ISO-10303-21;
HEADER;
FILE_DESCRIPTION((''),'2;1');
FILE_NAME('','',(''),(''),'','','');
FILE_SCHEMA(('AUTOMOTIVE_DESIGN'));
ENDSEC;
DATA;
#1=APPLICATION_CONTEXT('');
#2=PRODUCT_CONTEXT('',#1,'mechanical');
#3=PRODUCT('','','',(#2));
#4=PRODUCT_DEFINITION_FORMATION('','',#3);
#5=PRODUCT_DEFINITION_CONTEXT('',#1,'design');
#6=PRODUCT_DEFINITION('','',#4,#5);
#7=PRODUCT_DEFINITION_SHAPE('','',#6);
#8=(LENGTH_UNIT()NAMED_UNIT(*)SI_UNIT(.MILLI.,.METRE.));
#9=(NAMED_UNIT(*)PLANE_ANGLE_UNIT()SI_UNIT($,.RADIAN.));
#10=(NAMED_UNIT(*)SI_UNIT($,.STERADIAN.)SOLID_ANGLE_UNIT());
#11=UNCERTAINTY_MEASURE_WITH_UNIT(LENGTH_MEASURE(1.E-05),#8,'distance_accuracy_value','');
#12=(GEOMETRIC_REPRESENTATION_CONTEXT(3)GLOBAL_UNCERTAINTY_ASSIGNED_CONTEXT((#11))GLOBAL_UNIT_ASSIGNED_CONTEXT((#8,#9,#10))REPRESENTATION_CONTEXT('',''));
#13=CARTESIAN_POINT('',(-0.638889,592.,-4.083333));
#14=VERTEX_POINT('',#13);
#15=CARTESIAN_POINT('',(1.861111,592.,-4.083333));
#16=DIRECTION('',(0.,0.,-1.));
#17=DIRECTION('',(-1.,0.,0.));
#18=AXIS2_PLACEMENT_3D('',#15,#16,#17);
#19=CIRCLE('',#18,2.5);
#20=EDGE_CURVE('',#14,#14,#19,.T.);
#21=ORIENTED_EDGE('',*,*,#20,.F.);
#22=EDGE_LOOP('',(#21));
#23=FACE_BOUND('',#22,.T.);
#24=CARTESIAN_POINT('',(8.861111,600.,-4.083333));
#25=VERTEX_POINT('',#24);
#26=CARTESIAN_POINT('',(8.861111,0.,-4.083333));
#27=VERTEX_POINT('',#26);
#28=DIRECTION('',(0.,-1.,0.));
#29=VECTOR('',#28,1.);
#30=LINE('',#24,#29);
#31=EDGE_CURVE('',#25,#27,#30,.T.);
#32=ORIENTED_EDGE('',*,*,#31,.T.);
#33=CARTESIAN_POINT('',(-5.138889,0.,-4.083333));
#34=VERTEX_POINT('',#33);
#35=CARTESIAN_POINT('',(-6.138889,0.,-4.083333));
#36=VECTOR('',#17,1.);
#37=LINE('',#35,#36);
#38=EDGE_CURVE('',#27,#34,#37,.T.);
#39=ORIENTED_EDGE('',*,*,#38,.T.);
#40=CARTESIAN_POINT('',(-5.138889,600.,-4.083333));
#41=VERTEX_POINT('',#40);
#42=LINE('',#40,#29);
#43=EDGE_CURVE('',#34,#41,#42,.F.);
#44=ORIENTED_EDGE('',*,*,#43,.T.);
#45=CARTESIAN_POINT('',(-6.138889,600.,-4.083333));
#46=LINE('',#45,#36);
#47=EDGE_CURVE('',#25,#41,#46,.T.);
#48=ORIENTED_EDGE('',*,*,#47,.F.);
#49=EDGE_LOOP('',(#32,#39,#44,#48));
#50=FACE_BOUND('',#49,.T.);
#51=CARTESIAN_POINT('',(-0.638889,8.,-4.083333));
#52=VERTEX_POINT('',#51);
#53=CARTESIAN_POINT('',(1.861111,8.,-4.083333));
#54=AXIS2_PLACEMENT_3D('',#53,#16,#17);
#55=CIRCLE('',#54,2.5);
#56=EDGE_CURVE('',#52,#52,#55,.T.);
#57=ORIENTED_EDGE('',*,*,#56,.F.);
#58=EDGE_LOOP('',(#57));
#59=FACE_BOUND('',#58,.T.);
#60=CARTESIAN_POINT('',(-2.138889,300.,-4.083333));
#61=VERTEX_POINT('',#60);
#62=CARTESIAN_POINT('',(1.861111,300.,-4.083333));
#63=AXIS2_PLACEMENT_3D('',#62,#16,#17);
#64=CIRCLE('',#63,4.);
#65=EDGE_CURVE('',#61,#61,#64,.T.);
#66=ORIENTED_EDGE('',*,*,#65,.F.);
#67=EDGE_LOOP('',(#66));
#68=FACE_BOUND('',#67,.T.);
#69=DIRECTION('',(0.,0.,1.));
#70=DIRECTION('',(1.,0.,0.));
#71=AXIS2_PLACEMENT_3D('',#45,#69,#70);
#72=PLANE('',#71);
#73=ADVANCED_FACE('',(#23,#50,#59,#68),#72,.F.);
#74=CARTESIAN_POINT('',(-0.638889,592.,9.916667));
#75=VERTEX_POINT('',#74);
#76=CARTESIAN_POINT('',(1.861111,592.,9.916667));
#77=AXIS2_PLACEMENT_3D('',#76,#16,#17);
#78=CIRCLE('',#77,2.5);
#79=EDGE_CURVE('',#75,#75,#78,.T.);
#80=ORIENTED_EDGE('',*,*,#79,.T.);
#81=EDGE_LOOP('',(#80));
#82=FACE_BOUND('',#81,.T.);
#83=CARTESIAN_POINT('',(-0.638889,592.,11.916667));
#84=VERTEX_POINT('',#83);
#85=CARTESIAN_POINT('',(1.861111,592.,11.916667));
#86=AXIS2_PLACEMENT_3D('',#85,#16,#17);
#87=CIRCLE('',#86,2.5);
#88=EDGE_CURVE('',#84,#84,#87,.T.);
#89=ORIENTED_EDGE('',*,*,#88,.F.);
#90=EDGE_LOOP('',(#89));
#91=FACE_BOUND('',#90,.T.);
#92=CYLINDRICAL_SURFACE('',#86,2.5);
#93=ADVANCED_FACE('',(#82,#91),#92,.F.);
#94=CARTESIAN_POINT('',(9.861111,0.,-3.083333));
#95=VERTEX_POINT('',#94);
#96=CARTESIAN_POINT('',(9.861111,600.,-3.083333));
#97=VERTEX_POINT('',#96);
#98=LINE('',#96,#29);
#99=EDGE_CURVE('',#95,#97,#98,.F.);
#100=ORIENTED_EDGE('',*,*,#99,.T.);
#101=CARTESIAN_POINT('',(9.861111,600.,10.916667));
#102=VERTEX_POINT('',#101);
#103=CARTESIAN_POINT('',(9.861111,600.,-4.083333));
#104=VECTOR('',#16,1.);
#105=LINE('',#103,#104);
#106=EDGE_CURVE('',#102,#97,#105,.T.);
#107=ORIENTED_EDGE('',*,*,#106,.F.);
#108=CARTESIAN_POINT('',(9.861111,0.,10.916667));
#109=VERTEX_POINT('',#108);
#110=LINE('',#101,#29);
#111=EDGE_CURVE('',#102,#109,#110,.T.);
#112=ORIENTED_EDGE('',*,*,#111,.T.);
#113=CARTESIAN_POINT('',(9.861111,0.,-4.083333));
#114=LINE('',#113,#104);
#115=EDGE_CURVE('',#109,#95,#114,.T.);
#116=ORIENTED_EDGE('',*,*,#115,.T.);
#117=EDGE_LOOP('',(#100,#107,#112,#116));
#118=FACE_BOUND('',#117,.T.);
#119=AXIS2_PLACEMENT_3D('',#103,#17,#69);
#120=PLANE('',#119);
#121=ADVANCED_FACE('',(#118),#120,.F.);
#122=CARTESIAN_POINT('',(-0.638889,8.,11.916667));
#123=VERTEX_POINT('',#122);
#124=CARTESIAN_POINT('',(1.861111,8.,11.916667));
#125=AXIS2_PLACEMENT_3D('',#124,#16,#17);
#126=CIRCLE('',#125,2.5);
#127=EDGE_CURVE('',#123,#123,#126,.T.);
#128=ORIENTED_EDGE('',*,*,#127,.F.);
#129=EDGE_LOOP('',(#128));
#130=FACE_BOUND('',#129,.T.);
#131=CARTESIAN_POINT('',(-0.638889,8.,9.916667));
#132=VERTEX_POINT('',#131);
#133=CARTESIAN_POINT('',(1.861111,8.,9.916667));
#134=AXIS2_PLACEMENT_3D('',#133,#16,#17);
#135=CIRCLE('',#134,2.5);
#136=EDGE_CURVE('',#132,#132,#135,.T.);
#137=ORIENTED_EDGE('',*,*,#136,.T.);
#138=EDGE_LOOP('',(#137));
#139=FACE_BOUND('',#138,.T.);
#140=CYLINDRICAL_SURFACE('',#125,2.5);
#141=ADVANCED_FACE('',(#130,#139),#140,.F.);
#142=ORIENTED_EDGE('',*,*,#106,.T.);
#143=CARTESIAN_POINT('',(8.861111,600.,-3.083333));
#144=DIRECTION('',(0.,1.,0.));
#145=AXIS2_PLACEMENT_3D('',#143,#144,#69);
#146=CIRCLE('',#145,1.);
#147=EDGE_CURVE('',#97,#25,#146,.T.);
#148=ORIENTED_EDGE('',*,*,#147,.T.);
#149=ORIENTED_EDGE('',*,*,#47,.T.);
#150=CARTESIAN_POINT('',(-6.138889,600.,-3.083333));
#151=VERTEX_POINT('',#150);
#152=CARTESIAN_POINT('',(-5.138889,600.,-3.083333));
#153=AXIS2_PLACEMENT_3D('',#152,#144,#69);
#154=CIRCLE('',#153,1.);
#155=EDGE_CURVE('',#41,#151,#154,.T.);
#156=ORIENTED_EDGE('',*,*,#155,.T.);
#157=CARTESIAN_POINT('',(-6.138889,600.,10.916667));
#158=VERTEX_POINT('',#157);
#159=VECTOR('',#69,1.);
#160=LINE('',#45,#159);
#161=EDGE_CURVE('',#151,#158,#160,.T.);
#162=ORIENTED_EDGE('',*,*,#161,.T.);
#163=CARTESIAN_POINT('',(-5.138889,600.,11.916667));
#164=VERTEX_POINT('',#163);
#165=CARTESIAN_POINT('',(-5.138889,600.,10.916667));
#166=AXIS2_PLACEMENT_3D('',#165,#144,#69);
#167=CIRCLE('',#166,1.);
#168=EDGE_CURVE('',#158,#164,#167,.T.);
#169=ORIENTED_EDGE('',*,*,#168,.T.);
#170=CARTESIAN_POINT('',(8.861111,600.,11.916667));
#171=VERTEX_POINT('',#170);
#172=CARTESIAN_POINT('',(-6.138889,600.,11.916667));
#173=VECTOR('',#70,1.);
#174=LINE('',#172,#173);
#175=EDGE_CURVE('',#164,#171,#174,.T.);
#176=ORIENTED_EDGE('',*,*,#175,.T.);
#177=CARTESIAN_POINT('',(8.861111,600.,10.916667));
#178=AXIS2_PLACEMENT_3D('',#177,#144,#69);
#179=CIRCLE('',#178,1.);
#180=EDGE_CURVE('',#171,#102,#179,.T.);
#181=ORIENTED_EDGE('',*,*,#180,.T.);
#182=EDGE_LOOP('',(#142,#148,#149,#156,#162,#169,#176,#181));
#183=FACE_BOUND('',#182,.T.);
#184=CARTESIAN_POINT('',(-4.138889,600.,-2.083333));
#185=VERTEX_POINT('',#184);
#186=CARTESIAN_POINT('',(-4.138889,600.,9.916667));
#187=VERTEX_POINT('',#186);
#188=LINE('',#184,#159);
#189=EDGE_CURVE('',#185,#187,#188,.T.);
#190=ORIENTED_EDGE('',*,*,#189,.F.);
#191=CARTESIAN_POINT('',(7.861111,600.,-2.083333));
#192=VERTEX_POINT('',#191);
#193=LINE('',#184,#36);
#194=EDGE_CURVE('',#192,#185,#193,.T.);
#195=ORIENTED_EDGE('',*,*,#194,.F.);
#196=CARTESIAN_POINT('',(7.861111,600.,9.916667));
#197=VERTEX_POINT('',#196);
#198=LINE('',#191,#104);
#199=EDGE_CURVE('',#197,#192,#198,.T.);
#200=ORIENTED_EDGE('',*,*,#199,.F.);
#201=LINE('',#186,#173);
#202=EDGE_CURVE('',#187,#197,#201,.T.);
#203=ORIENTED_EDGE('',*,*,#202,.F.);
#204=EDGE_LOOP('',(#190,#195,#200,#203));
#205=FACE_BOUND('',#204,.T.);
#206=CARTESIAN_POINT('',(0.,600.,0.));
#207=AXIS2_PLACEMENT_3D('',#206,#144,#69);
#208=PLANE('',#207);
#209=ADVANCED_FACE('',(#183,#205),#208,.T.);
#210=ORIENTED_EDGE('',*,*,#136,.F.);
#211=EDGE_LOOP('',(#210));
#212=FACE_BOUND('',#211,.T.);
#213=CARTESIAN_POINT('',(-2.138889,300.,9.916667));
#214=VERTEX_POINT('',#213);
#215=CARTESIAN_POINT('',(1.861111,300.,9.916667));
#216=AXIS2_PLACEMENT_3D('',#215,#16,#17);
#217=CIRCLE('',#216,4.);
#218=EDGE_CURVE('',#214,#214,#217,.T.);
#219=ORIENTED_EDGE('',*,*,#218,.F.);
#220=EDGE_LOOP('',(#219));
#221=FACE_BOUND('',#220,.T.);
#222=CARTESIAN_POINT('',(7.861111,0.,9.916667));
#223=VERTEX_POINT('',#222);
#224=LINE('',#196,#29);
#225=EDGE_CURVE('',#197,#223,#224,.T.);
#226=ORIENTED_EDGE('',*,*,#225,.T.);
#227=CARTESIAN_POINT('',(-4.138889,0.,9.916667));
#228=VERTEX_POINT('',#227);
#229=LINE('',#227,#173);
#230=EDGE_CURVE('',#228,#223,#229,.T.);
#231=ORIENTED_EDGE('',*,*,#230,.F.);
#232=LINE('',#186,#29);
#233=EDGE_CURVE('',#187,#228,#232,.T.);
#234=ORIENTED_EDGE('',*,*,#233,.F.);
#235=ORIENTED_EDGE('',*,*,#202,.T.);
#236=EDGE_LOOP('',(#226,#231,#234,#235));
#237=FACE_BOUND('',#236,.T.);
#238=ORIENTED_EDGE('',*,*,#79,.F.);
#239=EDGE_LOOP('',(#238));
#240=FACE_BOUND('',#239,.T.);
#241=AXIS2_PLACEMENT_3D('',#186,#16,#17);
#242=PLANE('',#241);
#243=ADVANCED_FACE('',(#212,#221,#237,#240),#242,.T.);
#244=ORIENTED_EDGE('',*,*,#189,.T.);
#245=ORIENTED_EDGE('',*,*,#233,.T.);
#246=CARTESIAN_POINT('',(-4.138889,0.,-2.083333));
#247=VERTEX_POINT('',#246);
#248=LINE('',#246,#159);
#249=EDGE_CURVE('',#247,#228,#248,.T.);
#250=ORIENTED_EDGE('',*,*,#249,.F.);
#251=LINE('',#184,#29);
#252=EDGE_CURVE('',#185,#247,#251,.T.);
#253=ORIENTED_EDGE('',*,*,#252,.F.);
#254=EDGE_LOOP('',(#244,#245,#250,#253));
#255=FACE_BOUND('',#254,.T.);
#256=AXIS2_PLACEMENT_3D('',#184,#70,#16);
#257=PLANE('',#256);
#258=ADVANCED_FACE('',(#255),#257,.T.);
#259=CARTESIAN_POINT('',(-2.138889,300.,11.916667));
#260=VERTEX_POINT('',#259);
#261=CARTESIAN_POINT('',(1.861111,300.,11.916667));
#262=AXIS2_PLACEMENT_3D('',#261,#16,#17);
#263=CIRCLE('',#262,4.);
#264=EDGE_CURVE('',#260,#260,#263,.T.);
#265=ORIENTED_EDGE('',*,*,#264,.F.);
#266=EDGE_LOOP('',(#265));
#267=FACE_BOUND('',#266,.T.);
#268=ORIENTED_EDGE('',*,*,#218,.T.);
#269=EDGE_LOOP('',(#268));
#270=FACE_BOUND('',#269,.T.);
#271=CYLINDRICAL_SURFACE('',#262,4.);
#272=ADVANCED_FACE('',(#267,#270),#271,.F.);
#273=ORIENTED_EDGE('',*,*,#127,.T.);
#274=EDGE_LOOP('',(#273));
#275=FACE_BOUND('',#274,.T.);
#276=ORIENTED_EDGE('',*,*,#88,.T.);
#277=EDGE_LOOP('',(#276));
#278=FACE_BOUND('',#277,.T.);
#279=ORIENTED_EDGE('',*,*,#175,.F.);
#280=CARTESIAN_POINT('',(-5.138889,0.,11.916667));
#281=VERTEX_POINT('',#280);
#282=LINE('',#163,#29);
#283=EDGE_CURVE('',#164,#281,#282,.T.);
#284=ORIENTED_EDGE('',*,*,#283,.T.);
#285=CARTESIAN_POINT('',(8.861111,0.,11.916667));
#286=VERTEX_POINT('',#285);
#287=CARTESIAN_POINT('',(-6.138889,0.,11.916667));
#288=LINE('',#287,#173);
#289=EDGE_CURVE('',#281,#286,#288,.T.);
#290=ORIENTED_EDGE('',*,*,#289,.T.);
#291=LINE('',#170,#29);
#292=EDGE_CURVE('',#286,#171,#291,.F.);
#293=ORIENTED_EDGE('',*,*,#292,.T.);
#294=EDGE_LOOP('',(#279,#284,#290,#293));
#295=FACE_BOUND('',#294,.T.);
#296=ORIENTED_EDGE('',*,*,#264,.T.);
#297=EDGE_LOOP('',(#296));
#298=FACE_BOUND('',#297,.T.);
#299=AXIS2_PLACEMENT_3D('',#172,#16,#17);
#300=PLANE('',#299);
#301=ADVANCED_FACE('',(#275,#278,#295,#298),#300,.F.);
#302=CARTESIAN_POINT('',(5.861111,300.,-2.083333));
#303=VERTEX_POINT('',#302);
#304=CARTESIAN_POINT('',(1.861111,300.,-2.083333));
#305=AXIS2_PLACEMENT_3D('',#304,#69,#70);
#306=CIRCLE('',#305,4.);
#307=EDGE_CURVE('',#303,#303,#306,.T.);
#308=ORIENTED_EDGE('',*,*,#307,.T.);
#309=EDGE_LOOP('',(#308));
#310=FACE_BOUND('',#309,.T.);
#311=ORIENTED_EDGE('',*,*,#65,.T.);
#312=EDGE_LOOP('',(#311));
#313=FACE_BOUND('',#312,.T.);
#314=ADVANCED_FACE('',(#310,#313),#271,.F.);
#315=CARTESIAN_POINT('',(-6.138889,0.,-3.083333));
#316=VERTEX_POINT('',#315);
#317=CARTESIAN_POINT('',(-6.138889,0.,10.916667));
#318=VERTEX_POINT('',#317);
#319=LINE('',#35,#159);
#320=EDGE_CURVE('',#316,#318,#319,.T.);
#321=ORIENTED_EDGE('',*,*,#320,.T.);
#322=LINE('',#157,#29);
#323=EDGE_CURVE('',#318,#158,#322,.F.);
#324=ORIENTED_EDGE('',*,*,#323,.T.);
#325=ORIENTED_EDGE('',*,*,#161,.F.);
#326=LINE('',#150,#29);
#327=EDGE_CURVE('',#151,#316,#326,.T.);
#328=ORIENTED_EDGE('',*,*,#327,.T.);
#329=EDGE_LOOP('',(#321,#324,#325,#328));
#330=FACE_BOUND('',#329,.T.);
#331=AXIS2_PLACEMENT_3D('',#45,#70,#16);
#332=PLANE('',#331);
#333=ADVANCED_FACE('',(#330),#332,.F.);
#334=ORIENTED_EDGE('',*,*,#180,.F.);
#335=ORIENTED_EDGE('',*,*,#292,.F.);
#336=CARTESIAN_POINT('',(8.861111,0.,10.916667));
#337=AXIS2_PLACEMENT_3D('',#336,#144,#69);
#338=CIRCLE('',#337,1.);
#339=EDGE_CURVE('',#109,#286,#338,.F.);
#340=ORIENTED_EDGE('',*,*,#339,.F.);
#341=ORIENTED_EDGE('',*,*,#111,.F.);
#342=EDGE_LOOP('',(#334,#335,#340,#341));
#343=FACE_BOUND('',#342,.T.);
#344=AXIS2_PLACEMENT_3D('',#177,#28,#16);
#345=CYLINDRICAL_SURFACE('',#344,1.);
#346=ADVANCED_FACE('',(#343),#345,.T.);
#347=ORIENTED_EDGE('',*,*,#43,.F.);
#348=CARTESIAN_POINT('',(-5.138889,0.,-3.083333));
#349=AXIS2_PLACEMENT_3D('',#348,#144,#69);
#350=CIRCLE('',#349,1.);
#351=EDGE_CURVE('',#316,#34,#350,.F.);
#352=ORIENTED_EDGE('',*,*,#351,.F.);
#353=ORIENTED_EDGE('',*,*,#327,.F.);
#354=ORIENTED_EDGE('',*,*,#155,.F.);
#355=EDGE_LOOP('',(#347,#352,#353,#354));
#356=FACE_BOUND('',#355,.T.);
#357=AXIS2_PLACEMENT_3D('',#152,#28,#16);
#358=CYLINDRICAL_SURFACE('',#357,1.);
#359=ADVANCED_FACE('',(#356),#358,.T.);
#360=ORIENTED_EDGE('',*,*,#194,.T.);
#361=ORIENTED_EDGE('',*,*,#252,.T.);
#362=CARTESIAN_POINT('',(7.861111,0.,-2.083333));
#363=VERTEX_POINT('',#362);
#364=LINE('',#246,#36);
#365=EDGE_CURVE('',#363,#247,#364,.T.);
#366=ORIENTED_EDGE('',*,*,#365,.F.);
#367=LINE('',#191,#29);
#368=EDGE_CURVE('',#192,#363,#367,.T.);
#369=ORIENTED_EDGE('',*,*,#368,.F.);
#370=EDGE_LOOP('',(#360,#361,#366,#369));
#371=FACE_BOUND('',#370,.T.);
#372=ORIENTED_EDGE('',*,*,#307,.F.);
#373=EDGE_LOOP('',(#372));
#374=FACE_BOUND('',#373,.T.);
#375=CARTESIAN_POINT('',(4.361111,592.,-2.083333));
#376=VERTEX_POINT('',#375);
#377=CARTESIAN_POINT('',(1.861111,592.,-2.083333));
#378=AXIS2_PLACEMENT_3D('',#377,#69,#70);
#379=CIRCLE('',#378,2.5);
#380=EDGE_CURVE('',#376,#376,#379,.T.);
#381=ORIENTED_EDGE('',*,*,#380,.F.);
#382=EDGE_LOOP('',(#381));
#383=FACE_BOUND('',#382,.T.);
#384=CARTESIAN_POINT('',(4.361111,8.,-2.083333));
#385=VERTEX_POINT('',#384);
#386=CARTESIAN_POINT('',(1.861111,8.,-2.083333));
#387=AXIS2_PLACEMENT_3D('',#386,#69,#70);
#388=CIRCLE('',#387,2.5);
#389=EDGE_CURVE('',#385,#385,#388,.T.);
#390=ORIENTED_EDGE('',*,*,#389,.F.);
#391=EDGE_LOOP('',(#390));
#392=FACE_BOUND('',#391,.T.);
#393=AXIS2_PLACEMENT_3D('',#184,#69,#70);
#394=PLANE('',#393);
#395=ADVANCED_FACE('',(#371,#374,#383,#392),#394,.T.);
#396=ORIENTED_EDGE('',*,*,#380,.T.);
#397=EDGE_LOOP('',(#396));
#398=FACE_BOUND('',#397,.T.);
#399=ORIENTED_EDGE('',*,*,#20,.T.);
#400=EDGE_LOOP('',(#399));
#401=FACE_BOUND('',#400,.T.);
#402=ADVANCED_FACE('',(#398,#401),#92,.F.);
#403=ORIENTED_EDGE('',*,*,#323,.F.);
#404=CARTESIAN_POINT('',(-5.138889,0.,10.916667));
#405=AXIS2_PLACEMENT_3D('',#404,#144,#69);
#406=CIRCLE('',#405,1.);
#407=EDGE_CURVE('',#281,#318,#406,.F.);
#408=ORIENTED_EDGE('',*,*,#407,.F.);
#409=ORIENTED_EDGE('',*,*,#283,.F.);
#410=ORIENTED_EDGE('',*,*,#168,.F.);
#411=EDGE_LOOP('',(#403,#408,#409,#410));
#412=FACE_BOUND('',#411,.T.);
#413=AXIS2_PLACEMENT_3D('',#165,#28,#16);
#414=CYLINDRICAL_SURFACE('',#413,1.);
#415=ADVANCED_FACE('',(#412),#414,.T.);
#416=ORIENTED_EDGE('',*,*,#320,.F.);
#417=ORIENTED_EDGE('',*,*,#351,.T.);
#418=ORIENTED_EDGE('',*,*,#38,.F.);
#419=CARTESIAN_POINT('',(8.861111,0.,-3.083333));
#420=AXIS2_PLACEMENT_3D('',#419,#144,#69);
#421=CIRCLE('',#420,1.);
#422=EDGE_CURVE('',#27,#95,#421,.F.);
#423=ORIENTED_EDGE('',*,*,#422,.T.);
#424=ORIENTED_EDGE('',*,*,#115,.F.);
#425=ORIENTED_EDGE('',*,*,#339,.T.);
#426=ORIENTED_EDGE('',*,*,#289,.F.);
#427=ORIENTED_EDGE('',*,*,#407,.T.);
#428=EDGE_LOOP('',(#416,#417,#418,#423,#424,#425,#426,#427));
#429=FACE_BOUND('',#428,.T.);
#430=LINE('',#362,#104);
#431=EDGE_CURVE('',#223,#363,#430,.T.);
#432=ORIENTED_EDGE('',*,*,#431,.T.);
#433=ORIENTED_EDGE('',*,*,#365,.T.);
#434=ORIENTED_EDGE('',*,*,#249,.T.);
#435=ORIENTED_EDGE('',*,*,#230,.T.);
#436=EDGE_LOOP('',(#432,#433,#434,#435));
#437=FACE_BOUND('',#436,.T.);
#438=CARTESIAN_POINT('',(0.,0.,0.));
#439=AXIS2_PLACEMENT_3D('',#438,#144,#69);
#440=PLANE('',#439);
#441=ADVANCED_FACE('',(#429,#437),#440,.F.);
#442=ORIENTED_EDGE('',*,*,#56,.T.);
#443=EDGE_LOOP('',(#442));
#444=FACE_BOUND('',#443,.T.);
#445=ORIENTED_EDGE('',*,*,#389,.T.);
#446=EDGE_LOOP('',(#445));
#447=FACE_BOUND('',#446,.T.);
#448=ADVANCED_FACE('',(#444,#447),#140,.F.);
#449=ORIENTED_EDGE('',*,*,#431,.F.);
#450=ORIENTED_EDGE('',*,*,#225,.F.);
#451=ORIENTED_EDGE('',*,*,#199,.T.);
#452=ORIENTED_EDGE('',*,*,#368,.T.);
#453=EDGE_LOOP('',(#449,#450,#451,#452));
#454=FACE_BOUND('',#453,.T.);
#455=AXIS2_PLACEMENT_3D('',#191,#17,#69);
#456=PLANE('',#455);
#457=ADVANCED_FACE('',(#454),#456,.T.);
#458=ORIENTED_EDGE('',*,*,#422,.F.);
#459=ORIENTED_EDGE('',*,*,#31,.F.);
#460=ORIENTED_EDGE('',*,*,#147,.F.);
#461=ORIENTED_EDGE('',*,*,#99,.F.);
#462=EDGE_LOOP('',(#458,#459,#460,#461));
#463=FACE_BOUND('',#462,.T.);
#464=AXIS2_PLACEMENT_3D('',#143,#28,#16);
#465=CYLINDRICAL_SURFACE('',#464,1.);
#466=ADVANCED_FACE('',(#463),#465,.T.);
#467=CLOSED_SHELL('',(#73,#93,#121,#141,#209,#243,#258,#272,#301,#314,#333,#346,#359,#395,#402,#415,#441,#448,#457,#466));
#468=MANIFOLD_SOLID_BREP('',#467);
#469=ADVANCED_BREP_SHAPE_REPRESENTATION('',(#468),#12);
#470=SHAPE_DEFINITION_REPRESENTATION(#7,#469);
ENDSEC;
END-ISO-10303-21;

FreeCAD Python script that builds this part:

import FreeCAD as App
import Part
import Sketcher

V = App.Vector
Q = App.Units.Quantity


def edges_at(feature, points):
    """Names of the edges that pass closest to the given points."""
    edges = feature.Shape.Edges
    near = lambda p: min(range(len(edges)), key=lambda i: edges[i].distToShape(Part.Vertex(*p))[0])
    return sorted({f"Edge{near(p) + 1}" for p in points})

doc = App.newDocument("Part")
params = doc.addObject("Spreadsheet::Sheet", "Params")
for row, (alias, value) in enumerate([
    ("sketch1_width", "16 mm"),
    ("sketch1_width2", "12 mm"),
    ("pad1_length", "600 mm"),
    ("fillet_radius", "1 mm"),
    ("sketch2_diameter", "5 mm"),
    ("sketch2_diameter2", "8 mm"),
    ("pocket1_length", "16 mm"),
], start=1):
    params.set(f"A{row}", alias)
    params.set(f"B{row}", "=" + value)
    params.setAlias(f"B{row}", alias)

body = doc.addObject("PartDesign::Body", "Body")

# Sketch on XZ plane
sketch1 = body.newObject("Sketcher::SketchObject", "Sketch")
sketch1.AttachmentSupport = (doc.getObject("XZ_Plane"), [""])
sketch1.MapMode = "FlatFace"
sketch1.addGeometry([
    Part.LineSegment(V(-6.138889, -4.083333, 0), V(-6.138889, 11.916667, 0)),  # 0
    Part.LineSegment(V(-6.138889, 11.916667, 0), V(9.861111, 11.916667, 0)),  # 1
    Part.LineSegment(V(9.861111, 11.916667, 0), V(9.861111, -4.083333, 0)),  # 2
    Part.LineSegment(V(9.861111, -4.083333, 0), V(-6.138889, -4.083333, 0)),  # 3
    Part.LineSegment(V(7.861111, 9.916667, 0), V(-4.138889, 9.916667, 0)),  # 4
    Part.LineSegment(V(-4.138889, 9.916667, 0), V(-4.138889, -2.083333, 0)),  # 5
    Part.LineSegment(V(-4.138889, -2.083333, 0), V(7.861111, -2.083333, 0)),  # 6
    Part.LineSegment(V(7.861111, -2.083333, 0), V(7.861111, 9.916667, 0)),  # 7
], False)
sketch1.addConstraint([
    Sketcher.Constraint("Coincident", 0, 2, 1, 1),
    Sketcher.Constraint("Coincident", 1, 2, 2, 1),
    Sketcher.Constraint("Coincident", 2, 2, 3, 1),
    Sketcher.Constraint("Coincident", 3, 2, 0, 1),
    Sketcher.Constraint("Coincident", 4, 2, 5, 1),
    Sketcher.Constraint("Coincident", 5, 2, 6, 1),
    Sketcher.Constraint("Coincident", 6, 2, 7, 1),
    Sketcher.Constraint("Coincident", 7, 2, 4, 1),
    Sketcher.Constraint("Vertical", 0),
    Sketcher.Constraint("Horizontal", 1),
    Sketcher.Constraint("Vertical", 2),
    Sketcher.Constraint("Horizontal", 3),
    Sketcher.Constraint("Horizontal", 4),
    Sketcher.Constraint("Vertical", 5),
    Sketcher.Constraint("Horizontal", 6),
    Sketcher.Constraint("Vertical", 7),
    Sketcher.Constraint("Equal", 3, 0),
    Sketcher.Constraint("Equal", 6, 5),
    Sketcher.Constraint("DistanceX", 1, 1, 1, 2, Q("16 mm")),
    Sketcher.Constraint("DistanceX", 4, 2, 4, 1, Q("12 mm")),
    Sketcher.Constraint("DistanceX", 0, 2, 4, 2, Q("2 mm")),
    Sketcher.Constraint("DistanceY", 4, 2, 0, 2, Q("2 mm")),
    Sketcher.Constraint("DistanceX", 0, 2, -1, 1, Q("6.138889 mm")),
    Sketcher.Constraint("DistanceY", -1, 1, 0, 2, Q("11.916667 mm")),
])
sketch1.setExpression("Constraints[18]", "Params.sketch1_width")
sketch1.setExpression("Constraints[19]", "Params.sketch1_width2")
pad1 = body.newObject("PartDesign::Pad", "Pad")
pad1.Profile = sketch1
pad1.setExpression("Length", "Params.pad1_length")
pad1.Reversed = True
doc.recompute()

fillet = body.newObject("PartDesign::Fillet", "Fillet")
fillet.Base = (pad1, edges_at(pad1, [
    (-6.139, 300, -4.083),
    (9.861, 300, -4.083),
    (9.861, 300, 11.917),
    (-6.139, 300, 11.917),
]))
fillet.setExpression("Radius", "Params.fillet_radius")

# Sketch on XY plane
sketch2 = body.newObject("Sketcher::SketchObject", "Sketch001")
sketch2.AttachmentSupport = (doc.getObject("XY_Plane"), [""])
sketch2.MapMode = "FlatFace"
sketch2.AttachmentOffset = App.Placement(V(0, 0, -4.083333), App.Rotation())
sketch2.addGeometry([
    Part.Circle(V(1.861111, 8, 0), V(0, 0, 1), 2.5),
    Part.Circle(V(1.861111, 592, 0), V(0, 0, 1), 2.5),
    Part.Circle(V(1.861111, 300, 0), V(0, 0, 1), 4),
], False)
sketch2.addConstraint([
    Sketcher.Constraint("Equal", 0, 1),
    Sketcher.Constraint("Vertical", 0, 3, 1, 3),
    Sketcher.Constraint("Vertical", 1, 3, 2, 3),
    Sketcher.Constraint("Diameter", 0, Q("5 mm")),
    Sketcher.Constraint("Diameter", 2, Q("8 mm")),
    Sketcher.Constraint("DistanceY", -1, 1, 0, 3, Q("8 mm")),
    Sketcher.Constraint("DistanceY", -1, 1, 1, 3, Q("592 mm")),
    Sketcher.Constraint("DistanceY", -1, 1, 2, 3, Q("300 mm")),
    Sketcher.Constraint("DistanceX", -1, 1, 0, 3, Q("1.861111 mm")),
])
sketch2.setExpression("Constraints[3]", "Params.sketch2_diameter")
sketch2.setExpression("Constraints[4]", "Params.sketch2_diameter2")
pocket1 = body.newObject("PartDesign::Pocket", "Pocket")
pocket1.Profile = sketch2
pocket1.setExpression("Length", "Params.pocket1_length")
pocket1.Reversed = True

doc.recompute()
